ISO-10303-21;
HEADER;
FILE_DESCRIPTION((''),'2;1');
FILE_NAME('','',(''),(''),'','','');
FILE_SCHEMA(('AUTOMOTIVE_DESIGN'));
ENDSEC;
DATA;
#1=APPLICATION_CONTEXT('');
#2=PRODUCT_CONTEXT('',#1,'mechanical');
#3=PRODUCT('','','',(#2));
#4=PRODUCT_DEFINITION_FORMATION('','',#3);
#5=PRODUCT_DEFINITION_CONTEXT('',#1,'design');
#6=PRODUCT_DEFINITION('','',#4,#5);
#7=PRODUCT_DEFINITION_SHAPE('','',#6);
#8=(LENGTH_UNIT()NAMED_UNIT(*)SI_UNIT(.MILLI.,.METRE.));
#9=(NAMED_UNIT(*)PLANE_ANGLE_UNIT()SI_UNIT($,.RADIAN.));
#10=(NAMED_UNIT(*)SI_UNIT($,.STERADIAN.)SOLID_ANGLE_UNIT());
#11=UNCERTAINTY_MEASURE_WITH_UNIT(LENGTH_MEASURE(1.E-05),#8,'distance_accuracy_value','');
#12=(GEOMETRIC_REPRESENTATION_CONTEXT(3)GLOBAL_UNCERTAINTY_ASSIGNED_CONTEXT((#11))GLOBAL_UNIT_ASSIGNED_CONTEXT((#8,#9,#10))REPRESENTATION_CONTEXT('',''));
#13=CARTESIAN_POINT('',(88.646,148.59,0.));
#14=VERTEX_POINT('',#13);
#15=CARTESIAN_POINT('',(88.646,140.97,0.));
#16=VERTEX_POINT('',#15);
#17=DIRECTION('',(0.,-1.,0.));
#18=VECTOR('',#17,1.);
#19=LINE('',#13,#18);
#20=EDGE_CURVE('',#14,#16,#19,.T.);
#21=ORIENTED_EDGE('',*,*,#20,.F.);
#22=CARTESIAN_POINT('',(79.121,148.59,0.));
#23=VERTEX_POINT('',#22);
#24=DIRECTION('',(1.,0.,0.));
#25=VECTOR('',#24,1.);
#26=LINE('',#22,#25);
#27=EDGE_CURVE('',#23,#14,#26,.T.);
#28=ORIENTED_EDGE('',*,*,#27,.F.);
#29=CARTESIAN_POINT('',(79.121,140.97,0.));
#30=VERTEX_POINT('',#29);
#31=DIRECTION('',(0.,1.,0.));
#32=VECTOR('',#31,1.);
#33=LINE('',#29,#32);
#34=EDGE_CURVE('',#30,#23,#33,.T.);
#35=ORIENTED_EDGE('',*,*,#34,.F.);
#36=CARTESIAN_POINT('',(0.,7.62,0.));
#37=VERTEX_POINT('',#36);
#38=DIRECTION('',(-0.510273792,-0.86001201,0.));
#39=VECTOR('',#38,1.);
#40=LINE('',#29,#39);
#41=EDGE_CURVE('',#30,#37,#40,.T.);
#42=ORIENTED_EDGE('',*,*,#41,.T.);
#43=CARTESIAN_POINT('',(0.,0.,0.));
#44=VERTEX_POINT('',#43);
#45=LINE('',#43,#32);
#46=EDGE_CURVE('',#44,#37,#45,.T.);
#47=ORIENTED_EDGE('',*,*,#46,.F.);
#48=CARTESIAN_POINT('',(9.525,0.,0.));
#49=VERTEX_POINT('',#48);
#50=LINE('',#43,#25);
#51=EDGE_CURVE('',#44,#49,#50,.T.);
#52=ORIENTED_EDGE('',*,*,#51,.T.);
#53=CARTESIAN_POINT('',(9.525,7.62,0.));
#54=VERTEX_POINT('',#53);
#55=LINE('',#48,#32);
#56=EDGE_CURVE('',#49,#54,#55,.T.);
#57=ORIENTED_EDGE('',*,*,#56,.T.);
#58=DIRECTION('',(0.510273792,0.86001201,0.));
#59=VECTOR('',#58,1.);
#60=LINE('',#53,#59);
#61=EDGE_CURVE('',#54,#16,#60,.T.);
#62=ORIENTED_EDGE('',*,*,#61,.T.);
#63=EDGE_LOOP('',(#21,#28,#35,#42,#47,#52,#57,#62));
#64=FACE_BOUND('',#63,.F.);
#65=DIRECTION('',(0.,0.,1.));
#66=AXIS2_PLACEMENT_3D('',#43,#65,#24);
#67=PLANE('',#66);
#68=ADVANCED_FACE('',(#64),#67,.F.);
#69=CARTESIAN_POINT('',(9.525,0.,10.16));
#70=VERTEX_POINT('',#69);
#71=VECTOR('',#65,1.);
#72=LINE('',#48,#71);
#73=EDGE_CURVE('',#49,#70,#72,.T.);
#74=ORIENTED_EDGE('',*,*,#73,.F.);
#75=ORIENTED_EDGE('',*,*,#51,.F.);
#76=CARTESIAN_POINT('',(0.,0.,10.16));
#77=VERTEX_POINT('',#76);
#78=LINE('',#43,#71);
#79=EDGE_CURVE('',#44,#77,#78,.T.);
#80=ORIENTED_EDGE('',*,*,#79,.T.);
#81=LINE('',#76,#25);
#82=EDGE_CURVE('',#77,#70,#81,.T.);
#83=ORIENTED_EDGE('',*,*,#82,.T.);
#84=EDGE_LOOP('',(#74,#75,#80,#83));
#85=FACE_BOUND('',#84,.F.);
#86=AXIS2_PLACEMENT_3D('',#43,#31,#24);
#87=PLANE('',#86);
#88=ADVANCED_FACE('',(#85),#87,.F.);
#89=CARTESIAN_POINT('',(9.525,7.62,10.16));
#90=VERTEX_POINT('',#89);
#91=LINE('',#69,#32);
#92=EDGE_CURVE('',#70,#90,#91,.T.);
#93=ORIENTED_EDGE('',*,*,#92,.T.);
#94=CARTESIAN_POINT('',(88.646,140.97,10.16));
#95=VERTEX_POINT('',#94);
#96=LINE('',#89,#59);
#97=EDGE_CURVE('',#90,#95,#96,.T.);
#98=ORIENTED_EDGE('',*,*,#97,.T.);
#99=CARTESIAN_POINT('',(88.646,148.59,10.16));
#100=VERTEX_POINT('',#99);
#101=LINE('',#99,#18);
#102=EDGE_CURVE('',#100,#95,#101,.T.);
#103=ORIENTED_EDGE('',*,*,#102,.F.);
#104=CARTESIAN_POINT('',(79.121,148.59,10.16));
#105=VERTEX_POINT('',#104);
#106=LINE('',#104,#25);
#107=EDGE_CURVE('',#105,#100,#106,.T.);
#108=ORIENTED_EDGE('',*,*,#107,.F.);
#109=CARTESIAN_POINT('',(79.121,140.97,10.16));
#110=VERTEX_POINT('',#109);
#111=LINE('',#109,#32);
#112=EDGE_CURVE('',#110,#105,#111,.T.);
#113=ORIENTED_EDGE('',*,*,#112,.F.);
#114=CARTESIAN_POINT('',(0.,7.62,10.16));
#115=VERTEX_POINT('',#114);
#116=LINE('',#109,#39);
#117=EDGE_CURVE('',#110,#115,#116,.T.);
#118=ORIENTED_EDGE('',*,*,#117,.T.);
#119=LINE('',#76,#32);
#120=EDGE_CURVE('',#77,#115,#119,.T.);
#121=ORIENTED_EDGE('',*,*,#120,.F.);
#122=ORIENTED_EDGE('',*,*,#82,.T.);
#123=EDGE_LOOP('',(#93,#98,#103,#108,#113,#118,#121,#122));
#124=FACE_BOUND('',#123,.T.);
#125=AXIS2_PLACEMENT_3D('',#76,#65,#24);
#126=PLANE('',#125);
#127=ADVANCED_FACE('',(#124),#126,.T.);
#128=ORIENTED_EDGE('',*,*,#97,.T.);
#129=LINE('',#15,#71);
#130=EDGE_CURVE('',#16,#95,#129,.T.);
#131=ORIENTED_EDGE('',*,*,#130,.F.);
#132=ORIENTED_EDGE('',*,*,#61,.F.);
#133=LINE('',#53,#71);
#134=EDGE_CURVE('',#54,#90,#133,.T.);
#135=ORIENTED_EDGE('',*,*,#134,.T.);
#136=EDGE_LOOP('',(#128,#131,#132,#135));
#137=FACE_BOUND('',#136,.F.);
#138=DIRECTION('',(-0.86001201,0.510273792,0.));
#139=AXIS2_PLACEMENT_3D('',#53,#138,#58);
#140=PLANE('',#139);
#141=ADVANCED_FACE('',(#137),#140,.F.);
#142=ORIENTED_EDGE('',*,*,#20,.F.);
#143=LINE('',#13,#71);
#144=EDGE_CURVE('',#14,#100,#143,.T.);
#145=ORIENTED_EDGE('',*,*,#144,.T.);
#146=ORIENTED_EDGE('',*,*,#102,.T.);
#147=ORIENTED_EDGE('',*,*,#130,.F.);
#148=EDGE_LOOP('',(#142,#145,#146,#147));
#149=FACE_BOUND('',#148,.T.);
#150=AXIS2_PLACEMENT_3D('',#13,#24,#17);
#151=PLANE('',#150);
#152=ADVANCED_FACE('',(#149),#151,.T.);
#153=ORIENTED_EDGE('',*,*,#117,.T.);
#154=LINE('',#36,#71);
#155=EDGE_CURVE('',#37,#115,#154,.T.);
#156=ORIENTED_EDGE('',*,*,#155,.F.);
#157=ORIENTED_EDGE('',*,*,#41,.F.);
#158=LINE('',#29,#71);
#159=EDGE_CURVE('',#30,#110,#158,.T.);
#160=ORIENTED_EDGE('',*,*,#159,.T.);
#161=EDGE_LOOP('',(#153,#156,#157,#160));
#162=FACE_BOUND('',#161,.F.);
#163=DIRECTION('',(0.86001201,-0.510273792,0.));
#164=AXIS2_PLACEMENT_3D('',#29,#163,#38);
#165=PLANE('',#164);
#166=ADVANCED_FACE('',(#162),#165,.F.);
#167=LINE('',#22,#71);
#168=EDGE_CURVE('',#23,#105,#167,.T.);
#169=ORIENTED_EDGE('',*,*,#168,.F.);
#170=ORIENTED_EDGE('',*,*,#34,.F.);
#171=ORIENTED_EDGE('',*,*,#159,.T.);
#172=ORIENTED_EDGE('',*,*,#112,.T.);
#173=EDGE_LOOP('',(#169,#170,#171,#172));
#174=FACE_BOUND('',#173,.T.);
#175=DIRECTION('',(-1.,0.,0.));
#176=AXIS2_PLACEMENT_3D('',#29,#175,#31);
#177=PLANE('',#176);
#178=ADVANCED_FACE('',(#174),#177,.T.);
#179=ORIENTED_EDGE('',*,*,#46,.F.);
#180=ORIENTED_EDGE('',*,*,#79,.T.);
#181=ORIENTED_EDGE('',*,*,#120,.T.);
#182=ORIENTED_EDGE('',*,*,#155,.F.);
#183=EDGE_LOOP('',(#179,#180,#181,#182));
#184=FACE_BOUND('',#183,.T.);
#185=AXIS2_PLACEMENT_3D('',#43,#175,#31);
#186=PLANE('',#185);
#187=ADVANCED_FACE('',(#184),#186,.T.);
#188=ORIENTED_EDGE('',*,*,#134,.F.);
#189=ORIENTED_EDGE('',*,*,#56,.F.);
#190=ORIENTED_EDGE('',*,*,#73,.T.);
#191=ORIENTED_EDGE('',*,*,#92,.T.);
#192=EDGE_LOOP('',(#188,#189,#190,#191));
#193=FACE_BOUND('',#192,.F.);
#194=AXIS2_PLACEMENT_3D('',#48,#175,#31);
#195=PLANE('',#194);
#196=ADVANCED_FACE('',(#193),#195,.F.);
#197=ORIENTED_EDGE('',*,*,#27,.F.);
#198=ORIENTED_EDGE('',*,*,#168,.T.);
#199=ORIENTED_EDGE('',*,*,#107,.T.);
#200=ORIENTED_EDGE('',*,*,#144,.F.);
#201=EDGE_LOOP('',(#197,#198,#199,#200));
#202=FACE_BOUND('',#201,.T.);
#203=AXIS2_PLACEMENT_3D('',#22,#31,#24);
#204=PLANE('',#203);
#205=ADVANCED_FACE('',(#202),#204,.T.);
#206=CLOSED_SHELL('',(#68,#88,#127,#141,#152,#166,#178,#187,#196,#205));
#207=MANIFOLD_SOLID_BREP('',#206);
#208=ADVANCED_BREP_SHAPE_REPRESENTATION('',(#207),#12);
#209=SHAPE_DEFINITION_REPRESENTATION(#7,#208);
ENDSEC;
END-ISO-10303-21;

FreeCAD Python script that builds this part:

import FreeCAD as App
import Part
import Sketcher
Q = App.Units.Quantity

doc = App.newDocument("Part")
body = doc.addObject("PartDesign::Body", "Body")

# Sketch on XY plane
sketch1 = doc.addObject("Sketcher::SketchObject", "Sketch")
body.addObject(sketch1)
sketch1.AttachmentSupport = (doc.XY_Plane, [""])
sketch1.MapMode = "FlatFace"
sketch1.addGeometry(Part.LineSegment(App.Vector(0, 7.62, 0), App.Vector(0, 0, 0)), False)
sketch1.addGeometry(Part.LineSegment(App.Vector(0, 0, 0), App.Vector(9.525, 0, 0)), False)
sketch1.addGeometry(Part.LineSegment(App.Vector(9.525, 0, 0), App.Vector(9.525, 7.62, 0)), False)
sketch1.addGeometry(Part.LineSegment(App.Vector(9.525, 7.62, 0), App.Vector(88.646, 140.97, 0)), False)
sketch1.addGeometry(Part.LineSegment(App.Vector(88.646, 140.97, 0), App.Vector(88.646, 148.59, 0)), False)
sketch1.addGeometry(Part.LineSegment(App.Vector(88.646, 148.59, 0), App.Vector(79.121, 148.59, 0)), False)
sketch1.addGeometry(Part.LineSegment(App.Vector(79.121, 148.59, 0), App.Vector(79.121, 140.97, 0)), False)
sketch1.addGeometry(Part.LineSegment(App.Vector(79.121, 140.97, 0), App.Vector(0, 7.62, 0)), False)
sketch1.addConstraint(Sketcher.Constraint("Coincident", 0, 2, 1, 1))
sketch1.addConstraint(Sketcher.Constraint("Coincident", 1, 2, 2, 1))
sketch1.addConstraint(Sketcher.Constraint("Coincident", 2, 2, 3, 1))
sketch1.addConstraint(Sketcher.Constraint("Coincident", 3, 2, 4, 1))
sketch1.addConstraint(Sketcher.Constraint("Coincident", 4, 2, 5, 1))
sketch1.addConstraint(Sketcher.Constraint("Coincident", 5, 2, 6, 1))
sketch1.addConstraint(Sketcher.Constraint("Coincident", 6, 2, 7, 1))
sketch1.addConstraint(Sketcher.Constraint("Coincident", 7, 2, 0, 1))
sketch1.addConstraint(Sketcher.Constraint("Vertical", 0))
sketch1.addConstraint(Sketcher.Constraint("Horizontal", 1))
sketch1.addConstraint(Sketcher.Constraint("Vertical", 2))
sketch1.addConstraint(Sketcher.Constraint("Vertical", 4))
sketch1.addConstraint(Sketcher.Constraint("Horizontal", 5))
sketch1.addConstraint(Sketcher.Constraint("Vertical", 6))
sketch1.addConstraint(Sketcher.Constraint("Coincident", 0, 2, -1, 1))
sketch1.addConstraint(Sketcher.Constraint("Parallel", 3, 7))
sketch1.addConstraint(Sketcher.Constraint("Horizontal", 3, 2, 6, 2))
sketch1.addConstraint(Sketcher.Constraint("Horizontal", 2, 2, 7, 2))
sketch1.addConstraint(Sketcher.Constraint("Equal", 2, 4))
sketch1.addConstraint(Sketcher.Constraint("DistanceY", 0, 2, 0, 1, Q("0.3 in")))
sketch1.addConstraint(Sketcher.Constraint("DistanceX", 1, 1, 1, 2, Q("0.375 in")))
sketch1.addConstraint(Sketcher.Constraint("DistanceY", 2, 2, 3, 2, Q("5.25 in")))
sketch1.addConstraint(Sketcher.Constraint("DistanceX", 2, 2, 5, 2, Q("2.74 in")))
pad1 = doc.addObject("PartDesign::Pad", "Pad")
body.addObject(pad1)
pad1.Profile = sketch1
pad1.Length = Q("0.4 in")

doc.recompute()
